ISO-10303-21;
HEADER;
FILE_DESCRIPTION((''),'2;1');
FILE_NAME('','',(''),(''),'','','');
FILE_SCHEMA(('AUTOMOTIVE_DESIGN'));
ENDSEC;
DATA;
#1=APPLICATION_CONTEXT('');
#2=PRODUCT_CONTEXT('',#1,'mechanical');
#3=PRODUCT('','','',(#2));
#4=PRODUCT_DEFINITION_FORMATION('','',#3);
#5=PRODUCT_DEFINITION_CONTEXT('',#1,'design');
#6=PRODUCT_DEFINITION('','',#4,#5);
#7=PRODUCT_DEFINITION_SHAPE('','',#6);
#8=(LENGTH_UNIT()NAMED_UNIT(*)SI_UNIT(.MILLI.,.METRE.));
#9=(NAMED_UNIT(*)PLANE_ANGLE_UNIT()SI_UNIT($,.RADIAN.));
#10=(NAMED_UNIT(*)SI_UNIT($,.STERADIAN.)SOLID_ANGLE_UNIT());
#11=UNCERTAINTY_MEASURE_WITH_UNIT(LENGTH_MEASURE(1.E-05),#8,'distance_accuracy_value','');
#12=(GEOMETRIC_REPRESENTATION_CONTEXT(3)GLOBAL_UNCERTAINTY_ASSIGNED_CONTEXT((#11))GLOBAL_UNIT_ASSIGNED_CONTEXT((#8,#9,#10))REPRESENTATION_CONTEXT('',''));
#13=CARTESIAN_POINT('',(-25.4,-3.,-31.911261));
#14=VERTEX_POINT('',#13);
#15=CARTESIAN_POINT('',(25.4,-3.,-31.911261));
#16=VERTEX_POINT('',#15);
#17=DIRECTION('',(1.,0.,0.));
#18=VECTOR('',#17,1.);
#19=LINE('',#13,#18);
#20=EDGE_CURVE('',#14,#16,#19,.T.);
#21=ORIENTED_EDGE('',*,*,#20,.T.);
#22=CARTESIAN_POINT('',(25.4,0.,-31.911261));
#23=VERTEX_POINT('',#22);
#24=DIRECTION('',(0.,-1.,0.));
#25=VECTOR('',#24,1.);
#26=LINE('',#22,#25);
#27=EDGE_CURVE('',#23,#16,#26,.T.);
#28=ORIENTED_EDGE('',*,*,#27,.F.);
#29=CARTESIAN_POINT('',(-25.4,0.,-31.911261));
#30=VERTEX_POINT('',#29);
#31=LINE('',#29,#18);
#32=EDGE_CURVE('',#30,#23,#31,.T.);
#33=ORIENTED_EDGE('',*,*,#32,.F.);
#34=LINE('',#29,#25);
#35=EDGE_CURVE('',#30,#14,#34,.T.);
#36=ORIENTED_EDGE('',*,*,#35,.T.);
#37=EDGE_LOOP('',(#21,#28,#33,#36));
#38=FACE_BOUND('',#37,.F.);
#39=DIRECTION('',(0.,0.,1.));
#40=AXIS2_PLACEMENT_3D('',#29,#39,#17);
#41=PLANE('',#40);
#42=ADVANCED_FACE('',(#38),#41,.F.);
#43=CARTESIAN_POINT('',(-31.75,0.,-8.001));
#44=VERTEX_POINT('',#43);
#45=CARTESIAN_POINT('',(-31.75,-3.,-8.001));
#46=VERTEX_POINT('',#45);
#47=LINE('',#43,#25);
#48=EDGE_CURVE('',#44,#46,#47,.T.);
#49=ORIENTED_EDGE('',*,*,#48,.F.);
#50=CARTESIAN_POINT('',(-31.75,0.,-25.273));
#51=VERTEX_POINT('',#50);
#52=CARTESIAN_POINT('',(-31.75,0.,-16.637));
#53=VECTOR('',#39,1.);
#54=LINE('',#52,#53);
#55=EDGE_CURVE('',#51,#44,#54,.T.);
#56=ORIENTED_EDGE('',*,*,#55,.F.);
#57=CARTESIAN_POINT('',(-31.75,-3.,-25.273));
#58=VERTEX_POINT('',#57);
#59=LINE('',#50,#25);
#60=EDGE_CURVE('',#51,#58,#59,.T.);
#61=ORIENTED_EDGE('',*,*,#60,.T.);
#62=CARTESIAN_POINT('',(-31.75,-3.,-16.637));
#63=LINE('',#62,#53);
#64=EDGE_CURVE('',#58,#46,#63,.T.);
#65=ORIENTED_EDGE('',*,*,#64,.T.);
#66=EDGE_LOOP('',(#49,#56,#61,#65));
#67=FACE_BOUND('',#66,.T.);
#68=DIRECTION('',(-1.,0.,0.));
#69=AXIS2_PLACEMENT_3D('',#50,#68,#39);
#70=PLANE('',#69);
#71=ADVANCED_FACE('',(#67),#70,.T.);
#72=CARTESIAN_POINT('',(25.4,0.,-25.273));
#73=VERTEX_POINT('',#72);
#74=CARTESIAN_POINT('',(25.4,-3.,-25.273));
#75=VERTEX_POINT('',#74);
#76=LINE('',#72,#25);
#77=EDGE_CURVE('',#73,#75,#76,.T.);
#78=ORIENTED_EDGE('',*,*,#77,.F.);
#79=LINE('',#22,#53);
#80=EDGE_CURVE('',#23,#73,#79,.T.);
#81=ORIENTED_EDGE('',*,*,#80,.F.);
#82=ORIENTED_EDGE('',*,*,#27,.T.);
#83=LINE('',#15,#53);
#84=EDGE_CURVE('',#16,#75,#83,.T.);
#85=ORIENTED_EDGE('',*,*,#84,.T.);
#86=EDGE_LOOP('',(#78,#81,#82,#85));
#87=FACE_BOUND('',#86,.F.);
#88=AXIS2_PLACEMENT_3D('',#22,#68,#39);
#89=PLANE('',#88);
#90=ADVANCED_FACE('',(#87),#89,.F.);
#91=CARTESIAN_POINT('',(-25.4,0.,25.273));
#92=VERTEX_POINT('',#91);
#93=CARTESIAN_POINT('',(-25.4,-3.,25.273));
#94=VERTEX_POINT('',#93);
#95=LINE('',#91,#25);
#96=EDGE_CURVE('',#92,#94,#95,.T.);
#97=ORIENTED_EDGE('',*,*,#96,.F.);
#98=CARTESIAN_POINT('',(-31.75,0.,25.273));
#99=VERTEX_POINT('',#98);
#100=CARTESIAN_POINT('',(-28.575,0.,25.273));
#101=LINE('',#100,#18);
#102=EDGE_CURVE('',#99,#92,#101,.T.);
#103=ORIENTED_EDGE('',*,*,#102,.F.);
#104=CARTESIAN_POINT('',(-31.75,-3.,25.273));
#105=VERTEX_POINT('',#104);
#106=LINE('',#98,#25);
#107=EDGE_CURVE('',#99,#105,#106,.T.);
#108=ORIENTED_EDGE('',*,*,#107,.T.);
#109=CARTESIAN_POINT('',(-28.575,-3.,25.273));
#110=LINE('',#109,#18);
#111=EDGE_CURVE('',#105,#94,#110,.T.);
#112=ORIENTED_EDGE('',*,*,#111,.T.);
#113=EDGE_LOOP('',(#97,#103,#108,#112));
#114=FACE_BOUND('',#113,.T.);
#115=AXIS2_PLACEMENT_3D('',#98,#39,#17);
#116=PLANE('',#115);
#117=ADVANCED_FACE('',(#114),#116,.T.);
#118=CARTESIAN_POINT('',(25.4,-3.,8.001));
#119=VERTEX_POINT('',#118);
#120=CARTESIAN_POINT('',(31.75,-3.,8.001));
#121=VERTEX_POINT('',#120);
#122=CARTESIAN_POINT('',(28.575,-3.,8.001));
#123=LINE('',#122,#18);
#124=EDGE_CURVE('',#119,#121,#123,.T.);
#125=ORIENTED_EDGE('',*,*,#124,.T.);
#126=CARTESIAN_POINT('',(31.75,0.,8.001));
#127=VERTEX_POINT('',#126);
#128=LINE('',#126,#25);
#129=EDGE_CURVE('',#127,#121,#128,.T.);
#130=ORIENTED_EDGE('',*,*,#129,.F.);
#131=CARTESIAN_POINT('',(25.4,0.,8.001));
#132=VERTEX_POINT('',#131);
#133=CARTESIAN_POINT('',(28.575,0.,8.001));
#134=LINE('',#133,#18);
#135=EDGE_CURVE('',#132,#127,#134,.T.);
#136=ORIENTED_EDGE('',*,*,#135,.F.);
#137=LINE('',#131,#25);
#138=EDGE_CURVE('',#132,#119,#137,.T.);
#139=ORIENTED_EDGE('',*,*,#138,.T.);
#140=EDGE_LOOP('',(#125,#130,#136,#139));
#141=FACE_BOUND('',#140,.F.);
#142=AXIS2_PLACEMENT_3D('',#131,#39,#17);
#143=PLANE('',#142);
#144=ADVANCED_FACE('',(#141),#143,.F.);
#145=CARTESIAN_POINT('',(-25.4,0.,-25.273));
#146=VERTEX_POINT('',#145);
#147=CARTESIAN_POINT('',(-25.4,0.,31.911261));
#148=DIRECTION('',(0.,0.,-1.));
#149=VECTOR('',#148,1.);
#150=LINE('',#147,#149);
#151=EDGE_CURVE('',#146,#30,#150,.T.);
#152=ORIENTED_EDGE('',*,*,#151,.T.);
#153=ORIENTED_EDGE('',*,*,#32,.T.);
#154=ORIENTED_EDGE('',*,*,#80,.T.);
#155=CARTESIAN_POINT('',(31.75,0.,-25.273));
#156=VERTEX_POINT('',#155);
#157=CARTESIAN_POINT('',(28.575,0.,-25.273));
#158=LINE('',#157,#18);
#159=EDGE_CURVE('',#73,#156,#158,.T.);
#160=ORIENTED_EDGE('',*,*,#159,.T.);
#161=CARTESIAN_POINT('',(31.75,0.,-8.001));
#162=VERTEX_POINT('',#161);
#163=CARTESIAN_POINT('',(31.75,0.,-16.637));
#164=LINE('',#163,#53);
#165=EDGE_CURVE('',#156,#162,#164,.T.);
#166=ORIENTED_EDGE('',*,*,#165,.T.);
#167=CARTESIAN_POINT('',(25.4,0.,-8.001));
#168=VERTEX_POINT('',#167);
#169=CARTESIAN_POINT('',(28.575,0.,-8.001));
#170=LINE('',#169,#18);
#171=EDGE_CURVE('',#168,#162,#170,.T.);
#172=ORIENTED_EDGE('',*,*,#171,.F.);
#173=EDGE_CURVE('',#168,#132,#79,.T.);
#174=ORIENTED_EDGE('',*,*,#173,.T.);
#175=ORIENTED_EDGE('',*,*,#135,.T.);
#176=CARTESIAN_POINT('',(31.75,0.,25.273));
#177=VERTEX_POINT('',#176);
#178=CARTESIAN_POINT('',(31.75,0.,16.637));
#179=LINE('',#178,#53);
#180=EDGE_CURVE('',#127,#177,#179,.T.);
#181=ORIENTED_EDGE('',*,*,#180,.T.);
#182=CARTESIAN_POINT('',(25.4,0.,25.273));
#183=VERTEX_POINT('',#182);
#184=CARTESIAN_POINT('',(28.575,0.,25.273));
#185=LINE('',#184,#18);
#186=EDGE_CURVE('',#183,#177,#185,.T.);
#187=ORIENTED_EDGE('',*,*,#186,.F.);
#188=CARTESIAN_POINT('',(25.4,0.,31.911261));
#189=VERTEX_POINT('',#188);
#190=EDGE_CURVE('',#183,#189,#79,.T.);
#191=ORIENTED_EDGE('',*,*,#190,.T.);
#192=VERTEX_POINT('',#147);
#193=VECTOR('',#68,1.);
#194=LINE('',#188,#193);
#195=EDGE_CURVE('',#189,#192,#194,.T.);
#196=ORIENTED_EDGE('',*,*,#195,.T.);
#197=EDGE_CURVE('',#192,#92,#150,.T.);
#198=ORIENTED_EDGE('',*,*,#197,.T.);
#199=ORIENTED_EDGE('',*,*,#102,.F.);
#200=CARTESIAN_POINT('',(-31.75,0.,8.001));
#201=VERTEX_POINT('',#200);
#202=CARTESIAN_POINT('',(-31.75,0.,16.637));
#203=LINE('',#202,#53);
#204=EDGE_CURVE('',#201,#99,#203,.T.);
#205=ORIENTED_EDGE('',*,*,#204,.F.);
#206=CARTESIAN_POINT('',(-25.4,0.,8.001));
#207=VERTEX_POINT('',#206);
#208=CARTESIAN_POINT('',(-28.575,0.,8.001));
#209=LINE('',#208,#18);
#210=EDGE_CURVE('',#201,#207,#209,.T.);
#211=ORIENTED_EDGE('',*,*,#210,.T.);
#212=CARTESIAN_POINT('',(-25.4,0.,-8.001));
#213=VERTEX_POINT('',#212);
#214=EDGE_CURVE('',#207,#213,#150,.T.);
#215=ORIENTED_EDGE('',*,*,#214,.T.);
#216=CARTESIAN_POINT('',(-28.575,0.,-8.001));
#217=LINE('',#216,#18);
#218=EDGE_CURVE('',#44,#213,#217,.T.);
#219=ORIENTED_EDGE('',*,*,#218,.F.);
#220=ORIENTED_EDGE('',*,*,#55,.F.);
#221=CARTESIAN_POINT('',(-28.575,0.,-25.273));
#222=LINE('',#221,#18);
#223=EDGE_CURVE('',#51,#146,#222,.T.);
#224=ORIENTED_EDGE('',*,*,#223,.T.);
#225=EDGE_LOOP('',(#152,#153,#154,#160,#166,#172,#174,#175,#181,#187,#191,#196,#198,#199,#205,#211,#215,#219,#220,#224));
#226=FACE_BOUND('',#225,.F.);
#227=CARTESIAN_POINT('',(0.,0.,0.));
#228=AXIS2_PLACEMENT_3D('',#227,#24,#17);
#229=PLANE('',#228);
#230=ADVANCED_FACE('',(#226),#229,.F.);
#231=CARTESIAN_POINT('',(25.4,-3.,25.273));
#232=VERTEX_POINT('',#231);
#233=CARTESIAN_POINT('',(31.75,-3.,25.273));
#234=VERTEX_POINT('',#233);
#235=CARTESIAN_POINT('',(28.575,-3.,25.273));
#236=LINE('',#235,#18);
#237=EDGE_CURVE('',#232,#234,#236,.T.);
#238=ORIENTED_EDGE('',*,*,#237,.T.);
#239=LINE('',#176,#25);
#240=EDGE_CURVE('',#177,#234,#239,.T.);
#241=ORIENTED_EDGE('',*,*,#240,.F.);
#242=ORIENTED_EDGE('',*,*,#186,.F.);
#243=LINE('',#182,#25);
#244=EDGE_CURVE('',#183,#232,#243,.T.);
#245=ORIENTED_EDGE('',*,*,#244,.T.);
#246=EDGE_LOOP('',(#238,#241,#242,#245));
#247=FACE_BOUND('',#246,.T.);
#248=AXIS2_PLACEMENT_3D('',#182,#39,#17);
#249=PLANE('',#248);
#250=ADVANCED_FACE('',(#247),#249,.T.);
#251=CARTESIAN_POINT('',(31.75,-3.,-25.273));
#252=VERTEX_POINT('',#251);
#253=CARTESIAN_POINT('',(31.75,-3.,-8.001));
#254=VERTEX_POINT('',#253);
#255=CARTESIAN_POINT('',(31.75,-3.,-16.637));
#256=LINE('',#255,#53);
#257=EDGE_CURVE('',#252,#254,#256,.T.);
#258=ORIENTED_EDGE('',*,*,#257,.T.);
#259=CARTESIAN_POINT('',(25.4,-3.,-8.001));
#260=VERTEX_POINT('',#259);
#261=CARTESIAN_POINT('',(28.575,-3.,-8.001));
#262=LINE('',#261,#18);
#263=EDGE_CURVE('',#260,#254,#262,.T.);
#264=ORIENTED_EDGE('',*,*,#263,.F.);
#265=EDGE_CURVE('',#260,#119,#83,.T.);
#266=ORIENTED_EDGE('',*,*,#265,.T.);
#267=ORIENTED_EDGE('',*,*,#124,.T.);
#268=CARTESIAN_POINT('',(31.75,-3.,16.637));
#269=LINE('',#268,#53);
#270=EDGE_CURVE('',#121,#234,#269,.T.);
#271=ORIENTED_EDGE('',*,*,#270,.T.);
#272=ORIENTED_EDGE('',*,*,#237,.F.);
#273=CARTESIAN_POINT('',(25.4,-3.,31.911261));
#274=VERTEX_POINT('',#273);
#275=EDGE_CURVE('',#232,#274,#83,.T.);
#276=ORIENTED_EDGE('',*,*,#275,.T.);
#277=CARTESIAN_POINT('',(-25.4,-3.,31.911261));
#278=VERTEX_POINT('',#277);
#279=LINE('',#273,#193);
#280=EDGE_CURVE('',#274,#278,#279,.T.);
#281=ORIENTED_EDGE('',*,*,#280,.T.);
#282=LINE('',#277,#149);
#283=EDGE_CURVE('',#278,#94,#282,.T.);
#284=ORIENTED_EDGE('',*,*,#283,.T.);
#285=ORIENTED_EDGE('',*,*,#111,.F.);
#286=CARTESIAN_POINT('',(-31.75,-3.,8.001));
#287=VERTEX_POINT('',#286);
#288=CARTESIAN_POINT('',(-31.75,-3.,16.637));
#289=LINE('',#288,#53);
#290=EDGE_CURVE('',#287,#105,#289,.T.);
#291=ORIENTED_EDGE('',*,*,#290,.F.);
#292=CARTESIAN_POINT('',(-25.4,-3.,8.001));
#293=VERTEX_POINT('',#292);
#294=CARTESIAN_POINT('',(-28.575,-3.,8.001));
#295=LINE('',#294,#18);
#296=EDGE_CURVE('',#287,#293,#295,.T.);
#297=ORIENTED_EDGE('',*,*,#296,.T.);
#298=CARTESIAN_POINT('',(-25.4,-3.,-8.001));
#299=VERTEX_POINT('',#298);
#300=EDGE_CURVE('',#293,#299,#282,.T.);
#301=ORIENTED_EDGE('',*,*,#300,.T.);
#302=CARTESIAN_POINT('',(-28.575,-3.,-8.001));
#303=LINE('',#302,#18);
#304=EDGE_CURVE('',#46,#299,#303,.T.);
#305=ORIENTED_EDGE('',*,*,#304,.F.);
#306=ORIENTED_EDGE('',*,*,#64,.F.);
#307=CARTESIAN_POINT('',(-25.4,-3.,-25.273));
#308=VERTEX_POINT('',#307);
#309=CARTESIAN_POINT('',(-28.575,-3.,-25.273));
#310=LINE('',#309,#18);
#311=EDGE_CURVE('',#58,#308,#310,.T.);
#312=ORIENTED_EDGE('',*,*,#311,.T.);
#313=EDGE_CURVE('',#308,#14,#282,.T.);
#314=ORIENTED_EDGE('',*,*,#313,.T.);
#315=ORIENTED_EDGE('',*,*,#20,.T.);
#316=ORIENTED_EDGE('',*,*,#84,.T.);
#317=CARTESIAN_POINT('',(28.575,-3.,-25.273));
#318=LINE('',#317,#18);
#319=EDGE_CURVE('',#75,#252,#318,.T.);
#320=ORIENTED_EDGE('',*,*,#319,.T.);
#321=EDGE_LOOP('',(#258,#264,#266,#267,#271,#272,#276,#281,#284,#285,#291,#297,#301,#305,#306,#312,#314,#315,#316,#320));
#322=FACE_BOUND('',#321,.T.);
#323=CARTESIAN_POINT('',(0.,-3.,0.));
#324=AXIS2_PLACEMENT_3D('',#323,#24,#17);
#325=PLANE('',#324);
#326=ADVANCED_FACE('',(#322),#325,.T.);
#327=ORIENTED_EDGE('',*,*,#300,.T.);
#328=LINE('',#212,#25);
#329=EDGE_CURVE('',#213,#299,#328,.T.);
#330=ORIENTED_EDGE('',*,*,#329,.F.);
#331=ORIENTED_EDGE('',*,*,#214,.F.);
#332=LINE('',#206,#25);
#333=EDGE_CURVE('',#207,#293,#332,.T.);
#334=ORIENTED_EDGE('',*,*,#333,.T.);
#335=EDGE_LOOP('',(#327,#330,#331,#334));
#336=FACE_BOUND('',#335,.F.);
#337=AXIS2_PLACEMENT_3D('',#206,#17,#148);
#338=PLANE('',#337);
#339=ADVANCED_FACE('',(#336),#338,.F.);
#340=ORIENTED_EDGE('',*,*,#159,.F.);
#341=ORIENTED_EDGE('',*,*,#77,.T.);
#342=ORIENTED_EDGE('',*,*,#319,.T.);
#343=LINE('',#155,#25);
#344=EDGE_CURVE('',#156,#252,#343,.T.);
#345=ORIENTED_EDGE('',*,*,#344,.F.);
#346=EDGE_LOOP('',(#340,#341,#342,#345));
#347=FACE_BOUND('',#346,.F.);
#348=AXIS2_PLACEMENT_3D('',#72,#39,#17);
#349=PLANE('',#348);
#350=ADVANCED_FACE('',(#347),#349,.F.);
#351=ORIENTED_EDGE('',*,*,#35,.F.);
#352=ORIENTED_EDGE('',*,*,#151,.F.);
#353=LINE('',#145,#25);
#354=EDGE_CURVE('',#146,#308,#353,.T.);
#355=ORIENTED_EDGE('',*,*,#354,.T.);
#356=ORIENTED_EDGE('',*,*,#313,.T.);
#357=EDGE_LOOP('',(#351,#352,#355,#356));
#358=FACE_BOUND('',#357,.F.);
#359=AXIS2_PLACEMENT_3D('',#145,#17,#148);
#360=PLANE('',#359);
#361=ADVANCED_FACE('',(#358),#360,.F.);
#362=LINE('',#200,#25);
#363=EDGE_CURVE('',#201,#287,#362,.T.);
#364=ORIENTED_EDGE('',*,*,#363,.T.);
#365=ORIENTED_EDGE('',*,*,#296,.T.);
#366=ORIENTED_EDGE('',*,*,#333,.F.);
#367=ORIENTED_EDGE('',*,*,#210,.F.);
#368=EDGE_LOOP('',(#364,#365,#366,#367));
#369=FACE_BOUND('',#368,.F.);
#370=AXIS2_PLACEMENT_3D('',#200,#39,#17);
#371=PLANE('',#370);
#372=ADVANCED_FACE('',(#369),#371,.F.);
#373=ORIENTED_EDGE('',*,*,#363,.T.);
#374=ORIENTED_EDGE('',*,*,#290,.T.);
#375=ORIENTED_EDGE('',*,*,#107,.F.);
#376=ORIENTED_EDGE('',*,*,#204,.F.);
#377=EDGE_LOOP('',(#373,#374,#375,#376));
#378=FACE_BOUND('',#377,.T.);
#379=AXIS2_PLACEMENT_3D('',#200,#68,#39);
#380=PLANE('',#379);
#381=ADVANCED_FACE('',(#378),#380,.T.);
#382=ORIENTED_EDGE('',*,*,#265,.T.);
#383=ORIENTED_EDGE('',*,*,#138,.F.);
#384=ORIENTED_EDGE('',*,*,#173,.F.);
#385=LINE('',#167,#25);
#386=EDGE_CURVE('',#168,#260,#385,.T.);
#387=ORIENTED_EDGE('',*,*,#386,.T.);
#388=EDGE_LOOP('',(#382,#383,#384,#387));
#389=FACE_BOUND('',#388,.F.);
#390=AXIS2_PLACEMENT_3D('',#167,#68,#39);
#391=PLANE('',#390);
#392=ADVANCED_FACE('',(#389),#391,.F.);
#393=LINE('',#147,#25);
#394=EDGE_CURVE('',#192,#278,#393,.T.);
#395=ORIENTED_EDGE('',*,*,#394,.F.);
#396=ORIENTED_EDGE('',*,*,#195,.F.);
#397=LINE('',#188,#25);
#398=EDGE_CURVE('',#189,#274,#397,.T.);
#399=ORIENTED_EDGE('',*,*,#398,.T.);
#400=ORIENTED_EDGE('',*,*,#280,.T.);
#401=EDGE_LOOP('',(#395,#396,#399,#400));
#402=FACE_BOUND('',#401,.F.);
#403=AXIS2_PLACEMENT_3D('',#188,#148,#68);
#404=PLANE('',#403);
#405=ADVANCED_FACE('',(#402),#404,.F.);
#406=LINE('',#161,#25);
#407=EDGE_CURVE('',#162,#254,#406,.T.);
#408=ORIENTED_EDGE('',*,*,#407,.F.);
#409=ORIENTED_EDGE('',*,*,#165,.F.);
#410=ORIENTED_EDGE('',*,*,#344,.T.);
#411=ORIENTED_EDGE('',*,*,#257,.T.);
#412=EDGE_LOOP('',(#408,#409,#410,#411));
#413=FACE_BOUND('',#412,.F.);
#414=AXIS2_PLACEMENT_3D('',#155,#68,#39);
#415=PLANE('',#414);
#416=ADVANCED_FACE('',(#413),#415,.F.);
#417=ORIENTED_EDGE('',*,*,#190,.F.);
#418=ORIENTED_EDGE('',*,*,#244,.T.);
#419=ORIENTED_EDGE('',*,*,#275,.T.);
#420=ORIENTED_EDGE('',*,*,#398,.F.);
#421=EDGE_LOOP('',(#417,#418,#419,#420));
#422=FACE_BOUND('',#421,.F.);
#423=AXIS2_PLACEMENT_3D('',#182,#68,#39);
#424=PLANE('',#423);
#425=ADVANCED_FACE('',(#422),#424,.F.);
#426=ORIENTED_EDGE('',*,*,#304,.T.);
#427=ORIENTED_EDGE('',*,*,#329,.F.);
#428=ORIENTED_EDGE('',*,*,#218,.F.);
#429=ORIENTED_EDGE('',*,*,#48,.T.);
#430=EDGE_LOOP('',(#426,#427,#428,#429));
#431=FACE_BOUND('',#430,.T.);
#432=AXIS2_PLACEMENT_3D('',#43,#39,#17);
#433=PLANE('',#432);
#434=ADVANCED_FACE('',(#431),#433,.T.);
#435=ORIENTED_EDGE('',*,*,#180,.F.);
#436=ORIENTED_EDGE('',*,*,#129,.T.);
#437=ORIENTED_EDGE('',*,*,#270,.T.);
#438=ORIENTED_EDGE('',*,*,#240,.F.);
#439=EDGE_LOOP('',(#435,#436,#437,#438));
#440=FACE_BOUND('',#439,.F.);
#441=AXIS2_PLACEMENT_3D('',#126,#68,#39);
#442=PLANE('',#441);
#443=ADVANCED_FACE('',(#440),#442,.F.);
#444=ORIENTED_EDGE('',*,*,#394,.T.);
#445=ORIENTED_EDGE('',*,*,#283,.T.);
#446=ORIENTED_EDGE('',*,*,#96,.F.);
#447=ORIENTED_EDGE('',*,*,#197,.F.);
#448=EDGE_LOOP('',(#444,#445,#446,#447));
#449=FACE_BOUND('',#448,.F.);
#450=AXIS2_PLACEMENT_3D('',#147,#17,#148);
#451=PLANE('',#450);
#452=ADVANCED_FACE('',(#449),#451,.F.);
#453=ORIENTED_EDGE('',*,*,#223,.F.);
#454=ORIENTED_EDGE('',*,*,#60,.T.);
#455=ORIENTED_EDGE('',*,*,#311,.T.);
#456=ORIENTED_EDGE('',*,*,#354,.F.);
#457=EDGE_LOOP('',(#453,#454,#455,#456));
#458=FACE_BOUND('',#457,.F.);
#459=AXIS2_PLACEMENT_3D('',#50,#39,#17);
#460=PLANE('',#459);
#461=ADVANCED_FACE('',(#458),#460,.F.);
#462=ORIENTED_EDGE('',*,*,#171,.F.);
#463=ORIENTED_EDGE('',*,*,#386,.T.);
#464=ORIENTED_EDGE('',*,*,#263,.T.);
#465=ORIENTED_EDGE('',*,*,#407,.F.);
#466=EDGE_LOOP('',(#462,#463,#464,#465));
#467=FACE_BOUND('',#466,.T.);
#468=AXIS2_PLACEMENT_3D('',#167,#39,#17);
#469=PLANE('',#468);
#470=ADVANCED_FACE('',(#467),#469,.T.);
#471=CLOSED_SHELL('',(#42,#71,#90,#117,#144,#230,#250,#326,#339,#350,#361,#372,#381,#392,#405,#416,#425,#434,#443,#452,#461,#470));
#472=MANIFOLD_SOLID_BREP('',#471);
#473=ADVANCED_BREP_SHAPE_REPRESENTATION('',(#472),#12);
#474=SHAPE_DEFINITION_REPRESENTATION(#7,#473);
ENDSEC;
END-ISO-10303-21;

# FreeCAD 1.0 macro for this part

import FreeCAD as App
import Part
import Sketcher

V = App.Vector
Q = App.Units.Quantity


def add_polygon(sketch, points):
    """Adds a closed chain of lines whose ends are joined by coincident constraints."""
    first, n = sketch.GeometryCount, len(points)
    for a, b in zip(points, points[1:] + points[:1]):
        sketch.addGeometry(Part.LineSegment(App.Vector(*a, 0), App.Vector(*b, 0)), False)
    for i in range(n):
        sketch.addConstraint(Sketcher.Constraint("Coincident", first + i, 2, first + (i + 1) % n, 1))

doc = App.newDocument("Part")
body = doc.addObject("PartDesign::Body", "Body")

# Sketch on XZ plane
sketch1 = body.newObject("Sketcher::SketchObject", "Sketch")
sketch1.AttachmentSupport = (doc.getObject("XZ_Plane"), [""])
sketch1.MapMode = "FlatFace"
add_polygon(sketch1, [(-25.4, -31.911261), (25.4, -31.911261), (25.4, -25.273), (31.75, -25.273), (31.75, -8.001), (25.4, -8.001), (25.4, 8.001), (31.75, 8.001), (31.75, 25.273), (25.4, 25.273), (25.4, 31.911261), (-25.4, 31.911261), (-25.4, 25.273), (-31.75, 25.273), (-31.75, 8.001), (-25.4, 8.001), (-25.4, -8.001), (-31.75, -8.001), (-31.75, -25.273), (-25.4, -25.273)])  # lines 0-19
sketch1.addConstraint([
    Sketcher.Constraint("Horizontal", 0),
    Sketcher.Constraint("Vertical", 1),
    Sketcher.Constraint("Horizontal", 2),
    Sketcher.Constraint("Vertical", 3),
    Sketcher.Constraint("Horizontal", 4),
    Sketcher.Constraint("Vertical", 5),
    Sketcher.Constraint("Horizontal", 6),
    Sketcher.Constraint("Vertical", 7),
    Sketcher.Constraint("Horizontal", 8),
    Sketcher.Constraint("Vertical", 9),
    Sketcher.Constraint("Horizontal", 10),
    Sketcher.Constraint("Vertical", 11),
    Sketcher.Constraint("Horizontal", 12),
    Sketcher.Constraint("Vertical", 13),
    Sketcher.Constraint("Horizontal", 14),
    Sketcher.Constraint("Vertical", 15),
    Sketcher.Constraint("Horizontal", 16),
    Sketcher.Constraint("Vertical", 17),
    Sketcher.Constraint("Horizontal", 18),
    Sketcher.Constraint("Vertical", 19),
    Sketcher.Constraint("Symmetric", 0, 2, 10, 2, -1, 1),
    Sketcher.Constraint("Symmetric", 2, 2, 12, 2, -1, 1),
    Sketcher.Constraint("Symmetric", 4, 2, 14, 2, -1, 1),
    Sketcher.Constraint("Symmetric", 6, 2, 16, 2, -1, 1),
    Sketcher.Constraint("Symmetric", 8, 2, 18, 2, -1, 1),
    Sketcher.Constraint("Symmetric", 8, 2, 11, 2, -2),
    Sketcher.Constraint("Symmetric", 6, 2, 13, 2, -2),
    Sketcher.Constraint("Vertical", 1, 2, 4, 2),
    Sketcher.Constraint("DistanceX", 0, 1, 0, 2, Q("2 in")),
    Sketcher.Constraint("DistanceX", 2, 1, 2, 2, Q("0.25 in")),
    Sketcher.Constraint("DistanceY", 3, 1, 3, 2, Q("0.68 in")),
    Sketcher.Constraint("DistanceY", 5, 1, 5, 2, Q("0.63 in")),
    Sketcher.Constraint("DistanceY", 1, 1, 1, 2, Q("6.638261 mm")),
])
pad1 = body.newObject("PartDesign::Pad", "Pad")
pad1.Profile = sketch1
pad1.Length = 3

doc.recompute()
